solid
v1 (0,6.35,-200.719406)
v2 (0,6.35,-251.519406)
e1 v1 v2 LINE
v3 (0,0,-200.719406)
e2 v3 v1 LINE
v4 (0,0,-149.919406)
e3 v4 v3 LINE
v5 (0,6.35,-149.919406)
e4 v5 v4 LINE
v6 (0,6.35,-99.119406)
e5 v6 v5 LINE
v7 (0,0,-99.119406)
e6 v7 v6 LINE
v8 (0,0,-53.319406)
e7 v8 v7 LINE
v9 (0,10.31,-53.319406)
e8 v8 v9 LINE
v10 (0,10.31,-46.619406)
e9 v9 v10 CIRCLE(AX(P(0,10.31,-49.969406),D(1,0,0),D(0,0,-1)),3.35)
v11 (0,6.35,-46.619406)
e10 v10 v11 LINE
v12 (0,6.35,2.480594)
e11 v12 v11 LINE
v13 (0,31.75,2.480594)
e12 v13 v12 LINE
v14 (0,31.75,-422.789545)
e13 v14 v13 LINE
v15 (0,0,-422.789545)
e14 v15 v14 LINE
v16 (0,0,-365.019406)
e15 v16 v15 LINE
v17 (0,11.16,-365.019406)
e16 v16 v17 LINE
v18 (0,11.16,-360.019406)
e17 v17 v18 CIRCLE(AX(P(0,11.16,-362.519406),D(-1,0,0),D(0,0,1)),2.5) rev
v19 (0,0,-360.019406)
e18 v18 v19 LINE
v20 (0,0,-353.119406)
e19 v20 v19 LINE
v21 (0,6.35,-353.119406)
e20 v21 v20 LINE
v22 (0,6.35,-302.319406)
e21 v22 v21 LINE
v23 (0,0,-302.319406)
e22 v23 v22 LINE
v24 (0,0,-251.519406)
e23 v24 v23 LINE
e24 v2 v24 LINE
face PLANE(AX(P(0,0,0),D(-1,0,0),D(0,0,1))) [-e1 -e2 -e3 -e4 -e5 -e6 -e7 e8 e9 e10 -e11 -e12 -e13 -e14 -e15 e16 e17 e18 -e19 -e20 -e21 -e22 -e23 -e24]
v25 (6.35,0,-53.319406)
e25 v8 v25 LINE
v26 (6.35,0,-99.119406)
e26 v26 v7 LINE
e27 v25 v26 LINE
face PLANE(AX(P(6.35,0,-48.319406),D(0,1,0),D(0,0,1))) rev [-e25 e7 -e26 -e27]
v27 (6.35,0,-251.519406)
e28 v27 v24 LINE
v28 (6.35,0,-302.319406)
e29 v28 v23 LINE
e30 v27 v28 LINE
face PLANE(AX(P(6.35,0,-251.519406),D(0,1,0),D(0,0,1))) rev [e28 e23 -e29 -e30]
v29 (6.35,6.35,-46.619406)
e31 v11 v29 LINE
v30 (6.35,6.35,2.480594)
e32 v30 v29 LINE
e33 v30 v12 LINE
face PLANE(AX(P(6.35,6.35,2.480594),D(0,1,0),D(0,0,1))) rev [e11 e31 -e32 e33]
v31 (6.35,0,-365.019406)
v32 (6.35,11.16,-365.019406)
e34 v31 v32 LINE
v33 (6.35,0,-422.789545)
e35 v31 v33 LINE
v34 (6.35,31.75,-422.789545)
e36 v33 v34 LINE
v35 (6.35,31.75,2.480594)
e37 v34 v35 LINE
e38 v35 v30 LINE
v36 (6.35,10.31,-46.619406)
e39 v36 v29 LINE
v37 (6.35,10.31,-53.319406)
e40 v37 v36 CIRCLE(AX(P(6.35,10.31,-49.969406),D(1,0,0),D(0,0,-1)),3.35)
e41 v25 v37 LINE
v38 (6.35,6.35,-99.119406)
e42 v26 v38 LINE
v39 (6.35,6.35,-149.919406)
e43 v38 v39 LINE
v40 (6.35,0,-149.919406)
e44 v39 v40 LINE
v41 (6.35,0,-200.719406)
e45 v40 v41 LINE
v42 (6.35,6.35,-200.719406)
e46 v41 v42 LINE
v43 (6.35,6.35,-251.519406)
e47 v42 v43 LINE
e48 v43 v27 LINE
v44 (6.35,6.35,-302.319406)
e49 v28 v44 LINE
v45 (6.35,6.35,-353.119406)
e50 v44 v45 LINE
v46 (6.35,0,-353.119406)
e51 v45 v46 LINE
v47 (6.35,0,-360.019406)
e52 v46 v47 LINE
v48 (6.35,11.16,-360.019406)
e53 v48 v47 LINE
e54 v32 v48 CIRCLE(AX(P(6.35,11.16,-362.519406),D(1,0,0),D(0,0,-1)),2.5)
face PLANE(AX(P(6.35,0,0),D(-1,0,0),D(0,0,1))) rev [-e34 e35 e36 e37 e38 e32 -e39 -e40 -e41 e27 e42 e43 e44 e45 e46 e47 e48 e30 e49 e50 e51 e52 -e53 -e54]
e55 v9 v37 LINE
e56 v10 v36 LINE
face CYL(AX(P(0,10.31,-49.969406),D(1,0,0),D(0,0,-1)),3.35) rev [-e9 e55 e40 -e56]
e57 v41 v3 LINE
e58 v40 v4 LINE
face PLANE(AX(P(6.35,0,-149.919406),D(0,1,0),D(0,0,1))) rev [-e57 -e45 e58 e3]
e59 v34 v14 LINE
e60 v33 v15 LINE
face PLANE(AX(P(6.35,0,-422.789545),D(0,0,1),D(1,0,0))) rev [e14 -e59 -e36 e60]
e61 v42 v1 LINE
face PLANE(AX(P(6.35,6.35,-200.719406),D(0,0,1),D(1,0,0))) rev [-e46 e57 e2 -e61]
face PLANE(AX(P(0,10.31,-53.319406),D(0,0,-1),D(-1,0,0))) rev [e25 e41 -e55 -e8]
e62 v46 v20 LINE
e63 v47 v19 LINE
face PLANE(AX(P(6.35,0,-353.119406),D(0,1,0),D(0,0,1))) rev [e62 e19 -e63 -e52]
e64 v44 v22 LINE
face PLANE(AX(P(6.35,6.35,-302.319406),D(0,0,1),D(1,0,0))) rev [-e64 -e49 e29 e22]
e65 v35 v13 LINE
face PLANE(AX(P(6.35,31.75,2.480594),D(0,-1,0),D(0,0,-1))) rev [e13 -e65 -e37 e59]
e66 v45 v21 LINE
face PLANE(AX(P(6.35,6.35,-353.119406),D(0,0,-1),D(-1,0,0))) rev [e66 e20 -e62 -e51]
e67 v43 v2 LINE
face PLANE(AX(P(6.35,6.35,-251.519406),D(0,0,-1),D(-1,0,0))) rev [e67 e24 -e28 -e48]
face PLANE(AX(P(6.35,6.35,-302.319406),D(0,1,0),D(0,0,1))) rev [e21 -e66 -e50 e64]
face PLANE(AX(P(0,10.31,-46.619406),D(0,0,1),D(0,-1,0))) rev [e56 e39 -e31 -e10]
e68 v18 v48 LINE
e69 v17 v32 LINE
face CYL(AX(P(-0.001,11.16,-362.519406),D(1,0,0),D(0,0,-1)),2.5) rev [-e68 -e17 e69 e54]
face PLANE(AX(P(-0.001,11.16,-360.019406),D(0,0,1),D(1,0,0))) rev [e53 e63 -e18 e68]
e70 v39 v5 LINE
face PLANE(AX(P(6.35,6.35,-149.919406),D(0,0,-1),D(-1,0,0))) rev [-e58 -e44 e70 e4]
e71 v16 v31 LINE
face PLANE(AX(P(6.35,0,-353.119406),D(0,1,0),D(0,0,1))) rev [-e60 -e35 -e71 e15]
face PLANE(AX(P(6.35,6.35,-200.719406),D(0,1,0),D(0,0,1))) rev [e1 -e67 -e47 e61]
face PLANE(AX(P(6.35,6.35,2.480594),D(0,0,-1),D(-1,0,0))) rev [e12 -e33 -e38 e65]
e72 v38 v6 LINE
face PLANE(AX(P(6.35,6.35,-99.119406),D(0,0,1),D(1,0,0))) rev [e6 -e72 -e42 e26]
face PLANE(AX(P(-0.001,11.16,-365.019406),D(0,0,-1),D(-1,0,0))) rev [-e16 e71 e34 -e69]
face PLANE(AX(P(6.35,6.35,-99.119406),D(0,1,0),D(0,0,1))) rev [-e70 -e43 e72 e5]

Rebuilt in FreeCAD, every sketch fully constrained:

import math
import FreeCAD as App
import Part
import Sketcher

V = App.Vector
Q = App.Units.Quantity


def add_polygon(sketch, points):
    """Adds a closed chain of lines whose ends are joined by coincident constraints."""
    first, n = sketch.GeometryCount, len(points)
    for a, b in zip(points, points[1:] + points[:1]):
        sketch.addGeometry(Part.LineSegment(App.Vector(*a, 0), App.Vector(*b, 0)), False)
    for i in range(n):
        sketch.addConstraint(Sketcher.Constraint("Coincident", first + i, 2, first + (i + 1) % n, 1))

doc = App.newDocument("Part")
body = doc.addObject("PartDesign::Body", "Body")

# Sketch on YZ plane
sketch1 = body.newObject("Sketcher::SketchObject", "Sketch")
sketch1.AttachmentSupport = (doc.getObject("YZ_Plane"), [""])
sketch1.MapMode = "FlatFace"
add_polygon(sketch1, [(0, -48), (0, -99), (6, -99), (6, -150), (0, -150), (0, -201), (6, -201), (6, -252), (0, -252), (0, -302), (6, -302), (6, -353), (0, -353), (0, -423), (32, -423), (32, 2), (6, 2), (6, -48)])  # lines 0-17
sketch1.addConstraint(Sketcher.Constraint("Vertical", 0))
sketch1.addConstraint(Sketcher.Constraint("Horizontal", 1))
sketch1.addConstraint(Sketcher.Constraint("Vertical", 2))
sketch1.addConstraint(Sketcher.Constraint("Horizontal", 3))
sketch1.addConstraint(Sketcher.Constraint("Vertical", 4))
sketch1.addConstraint(Sketcher.Constraint("Horizontal", 5))
sketch1.addConstraint(Sketcher.Constraint("Vertical", 6))
sketch1.addConstraint(Sketcher.Constraint("Horizontal", 7))
sketch1.addConstraint(Sketcher.Constraint("Vertical", 8))
sketch1.addConstraint(Sketcher.Constraint("Horizontal", 9))
sketch1.addConstraint(Sketcher.Constraint("Vertical", 10))
sketch1.addConstraint(Sketcher.Constraint("Horizontal", 11))
sketch1.addConstraint(Sketcher.Constraint("Vertical", 12))
sketch1.addConstraint(Sketcher.Constraint("Horizontal", 13))
sketch1.addConstraint(Sketcher.Constraint("Vertical", 14))
sketch1.addConstraint(Sketcher.Constraint("Horizontal", 15))
sketch1.addConstraint(Sketcher.Constraint("Vertical", 16))
sketch1.addConstraint(Sketcher.Constraint("Horizontal", 17))
sketch1.addConstraint(Sketcher.Constraint("PointOnObject", 0, 2, -2))
sketch1.addConstraint(Sketcher.Constraint("PointOnObject", 3, 2, -2))
sketch1.addConstraint(Sketcher.Constraint("PointOnObject", 7, 2, -2))
sketch1.addConstraint(Sketcher.Constraint("PointOnObject", 11, 2, -2))
sketch1.addConstraint(Sketcher.Constraint("Vertical", 2, 2, 5, 2))
sketch1.addConstraint(Sketcher.Constraint("Vertical", 6, 2, 9, 2))
sketch1.addConstraint(Sketcher.Constraint("Vertical", 10, 2, 15, 2))
sketch1.addConstraint(Sketcher.Constraint("Equal", 0, 2))
sketch1.addConstraint(Sketcher.Constraint("Equal", 2, 4))
sketch1.addConstraint(Sketcher.Constraint("Equal", 4, 6))
sketch1.addConstraint(Sketcher.Constraint("Equal", 6, 8))
sketch1.addConstraint(Sketcher.Constraint("Equal", 8, 10))
sketch1.addConstraint(Sketcher.Constraint("Equal", 10, 16))
sketch1.addConstraint(Sketcher.Constraint("DistanceX", 15, 2, 15, 1, Q("1 in")))
sketch1.addConstraint(Sketcher.Constraint("DistanceY", 0, 2, 0, 1, Q("2 in")))
sketch1.addConstraint(Sketcher.Constraint("DistanceX", 1, 1, 1, 2, Q("0.25 in")))
sketch1.addConstraint(Sketcher.Constraint("DistanceY", 12, 2, 12, 1, 69.670139))
sketch1.addConstraint(Sketcher.Constraint("DistanceY", 0, 2, -1, 1, 99.119406))
pad1 = body.newObject("PartDesign::Pad", "Pad")
pad1.Profile = sketch1
pad1.Length = Q("0.25 in")

# Sketch on YZ plane
sketch2 = body.newObject("Sketcher::SketchObject", "Sketch001")
sketch2.AttachmentSupport = (doc.getObject("YZ_Plane"), [""])
sketch2.MapMode = "FlatFace"
sketch2.AttachmentOffset = App.Placement(V(0, 0, 0.25 * 25.4), App.Rotation())
sketch2.addGeometry(Part.LineSegment(V(0, -365, 0), V(11.2, -365, 0)), False)
sketch2.addGeometry(Part.ArcOfCircle(Part.Circle(V(11.2, -362.5, 0), V(0, 0, 1), 2.5), math.radians(-90), math.radians(90)), False)
sketch2.addGeometry(Part.LineSegment(V(11.2, -360, 0), V(0, -360, 0)), False)
sketch2.addGeometry(Part.LineSegment(V(0, -360, 0), V(0, -365, 0)), False)
sketch2.addConstraint(Sketcher.Constraint("Tangent", 0, 2, 1, 1))
sketch2.addConstraint(Sketcher.Constraint("Tangent", 1, 2, 2, 1))
sketch2.addConstraint(Sketcher.Constraint("Coincident", 2, 2, 3, 1))
sketch2.addConstraint(Sketcher.Constraint("Coincident", 3, 2, 0, 1))
sketch2.addConstraint(Sketcher.Constraint("Horizontal", 0))
sketch2.addConstraint(Sketcher.Constraint("Horizontal", 2))
sketch2.addConstraint(Sketcher.Constraint("Vertical", 3))
sketch2.addConstraint(Sketcher.Constraint("Radius", 1, 2.5))
sketch2.addConstraint(Sketcher.Constraint("DistanceX", -1, 1, 1, 3, 11.16))
sketch2.addConstraint(Sketcher.Constraint("DistanceX", 0, 1, 0, 2, 11.194587))
sketch2.addConstraint(Sketcher.Constraint("DistanceY", 1, 3, -1, 1, 362.519406))
pocket1 = body.newObject("PartDesign::Pocket", "Pocket")
pocket1.Profile = sketch2
pocket1.Type = "UpToFirst"

# Sketch on YZ plane
sketch3 = body.newObject("Sketcher::SketchObject", "Sketch002")
sketch3.AttachmentSupport = (doc.getObject("YZ_Plane"), [""])
sketch3.MapMode = "FlatFace"
sketch3.AttachmentOffset = App.Placement(V(0, 0, 0.25 * 25.4), App.Rotation())
sketch3.addGeometry(Part.LineSegment(V(0, -53.3, 0), V(10.3, -53.3, 0)), False)
sketch3.addGeometry(Part.ArcOfCircle(Part.Circle(V(10.3, -50, 0), V(0, 0, 1), 3.4), math.radians(-90), math.radians(90)), False)
sketch3.addGeometry(Part.LineSegment(V(10.3, -46.6, 0), V(6.3, -46.6, 0)), False)
sketch3.addGeometry(Part.LineSegment(V(6.3, -46.6, 0), V(6.3, -48.3, 0)), False)
sketch3.addGeometry(Part.LineSegment(V(6.3, -48.3, 0), V(0, -48.3, 0)), False)
sketch3.addGeometry(Part.LineSegment(V(0, -48.3, 0), V(0, -53.3, 0)), False)
sketch3.addConstraint(Sketcher.Constraint("Tangent", 0, 2, 1, 1))
sketch3.addConstraint(Sketcher.Constraint("Tangent", 1, 2, 2, 1))
sketch3.addConstraint(Sketcher.Constraint("Coincident", 2, 2, 3, 1))
sketch3.addConstraint(Sketcher.Constraint("Coincident", 3, 2, 4, 1))
sketch3.addConstraint(Sketcher.Constraint("Coincident", 4, 2, 5, 1))
sketch3.addConstraint(Sketcher.Constraint("Coincident", 5, 2, 0, 1))
sketch3.addConstraint(Sketcher.Constraint("Horizontal", 0))
sketch3.addConstraint(Sketcher.Constraint("Horizontal", 2))
sketch3.addConstraint(Sketcher.Constraint("Vertical", 3))
sketch3.addConstraint(Sketcher.Constraint("Horizontal", 4))
sketch3.addConstraint(Sketcher.Constraint("Vertical", 5))
sketch3.addConstraint(Sketcher.Constraint("PointOnObject", 4, 2, -2))
sketch3.addConstraint(Sketcher.Constraint("DistanceX", 4, 2, 4, 1, Q("0.25 in")))
sketch3.addConstraint(Sketcher.Constraint("Radius", 1, 3.35))
sketch3.addConstraint(Sketcher.Constraint("DistanceX", 0, 1, 0, 2, 10.31))
sketch3.addConstraint(Sketcher.Constraint("DistanceY", 3, 2, 3, 1, 1.7))
sketch3.addConstraint(Sketcher.Constraint("DistanceY", 1, 3, -1, 1, 49.969406))
pocket2 = body.newObject("PartDesign::Pocket", "Pocket001")
pocket2.Profile = sketch3
pocket2.Type = "ThroughAll"

doc.recompute()
